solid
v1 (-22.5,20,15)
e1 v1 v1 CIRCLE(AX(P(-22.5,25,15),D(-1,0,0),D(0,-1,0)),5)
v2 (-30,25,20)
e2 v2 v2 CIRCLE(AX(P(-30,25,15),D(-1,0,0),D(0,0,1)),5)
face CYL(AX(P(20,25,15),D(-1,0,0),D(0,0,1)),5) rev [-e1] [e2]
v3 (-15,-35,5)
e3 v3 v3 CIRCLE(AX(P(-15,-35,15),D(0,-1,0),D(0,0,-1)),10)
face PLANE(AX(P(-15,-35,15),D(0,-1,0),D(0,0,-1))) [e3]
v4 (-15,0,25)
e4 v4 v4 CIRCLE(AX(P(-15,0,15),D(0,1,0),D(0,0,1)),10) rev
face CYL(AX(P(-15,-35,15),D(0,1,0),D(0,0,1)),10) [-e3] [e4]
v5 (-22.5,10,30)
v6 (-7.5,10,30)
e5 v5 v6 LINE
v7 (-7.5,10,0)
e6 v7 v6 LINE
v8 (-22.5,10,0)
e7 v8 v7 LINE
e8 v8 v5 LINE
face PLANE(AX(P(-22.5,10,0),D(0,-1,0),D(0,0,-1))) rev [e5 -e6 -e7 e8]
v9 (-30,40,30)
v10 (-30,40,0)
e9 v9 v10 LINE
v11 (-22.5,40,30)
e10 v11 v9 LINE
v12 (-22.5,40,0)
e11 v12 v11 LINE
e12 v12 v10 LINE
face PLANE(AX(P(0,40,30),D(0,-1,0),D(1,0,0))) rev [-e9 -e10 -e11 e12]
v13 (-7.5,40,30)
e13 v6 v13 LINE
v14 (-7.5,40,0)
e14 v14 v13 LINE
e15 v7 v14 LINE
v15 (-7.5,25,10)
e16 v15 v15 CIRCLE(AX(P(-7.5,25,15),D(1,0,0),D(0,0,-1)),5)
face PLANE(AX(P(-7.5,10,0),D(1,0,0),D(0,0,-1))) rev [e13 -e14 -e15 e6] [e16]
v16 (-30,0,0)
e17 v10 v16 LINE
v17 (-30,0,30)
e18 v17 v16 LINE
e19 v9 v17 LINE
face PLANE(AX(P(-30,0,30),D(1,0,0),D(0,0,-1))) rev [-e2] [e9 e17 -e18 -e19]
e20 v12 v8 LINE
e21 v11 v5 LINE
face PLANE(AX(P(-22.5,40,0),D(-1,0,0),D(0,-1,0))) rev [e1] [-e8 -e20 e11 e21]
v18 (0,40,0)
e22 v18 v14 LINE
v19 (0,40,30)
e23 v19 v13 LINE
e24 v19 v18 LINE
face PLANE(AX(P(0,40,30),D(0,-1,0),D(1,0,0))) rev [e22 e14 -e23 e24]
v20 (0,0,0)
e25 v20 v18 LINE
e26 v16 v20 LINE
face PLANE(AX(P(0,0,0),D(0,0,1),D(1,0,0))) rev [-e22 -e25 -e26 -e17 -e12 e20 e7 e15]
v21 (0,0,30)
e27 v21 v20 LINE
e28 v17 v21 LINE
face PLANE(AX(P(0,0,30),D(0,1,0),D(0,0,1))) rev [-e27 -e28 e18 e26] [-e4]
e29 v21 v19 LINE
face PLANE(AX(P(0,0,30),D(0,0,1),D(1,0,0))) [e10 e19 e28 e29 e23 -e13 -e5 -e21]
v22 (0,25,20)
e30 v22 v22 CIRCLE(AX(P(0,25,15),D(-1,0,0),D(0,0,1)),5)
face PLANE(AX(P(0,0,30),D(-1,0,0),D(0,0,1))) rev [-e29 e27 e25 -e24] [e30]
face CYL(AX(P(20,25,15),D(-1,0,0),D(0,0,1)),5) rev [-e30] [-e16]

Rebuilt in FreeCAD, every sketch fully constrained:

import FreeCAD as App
import Part
import Sketcher

V = App.Vector

doc = App.newDocument("Part")
params = doc.addObject("Spreadsheet::Sheet", "Params")
for row, (alias, value) in enumerate([
    ("sketch1_width", "30 mm"),
    ("sketch1_height", "40 mm"),
    ("pad1_length", "30 mm"),
    ("sketch2_width", "15 mm"),
    ("sketch2_height", "30 mm"),
    ("pocket1_length", "30 mm"),
    ("sketch3_diameter", "10 mm"),
    ("pocket2_length", "50 mm"),
    ("sketch4_diameter", "20 mm"),
    ("pad2_length", "35 mm"),
], start=1):
    params.set(f"A{row}", alias)
    params.set(f"B{row}", "=" + value)
    params.setAlias(f"B{row}", alias)

body = doc.addObject("PartDesign::Body", "Body")

sketch1 = body.newObject("Sketcher::SketchObject", "Sketch")
sketch1.AttachmentSupport = (doc.getObject("XY_Plane"), [""])
sketch1.MapMode = "FlatFace"
sketch1.addGeometry([
    Part.LineSegment(V(-30, 40, 0), V(-30, 0, 0)),
    Part.LineSegment(V(-30, 0, 0), V(0, 0, 0)),
    Part.LineSegment(V(0, 0, 0), V(0, 40, 0)),
    Part.LineSegment(V(0, 40, 0), V(-30, 40, 0)),
], False)
sketch1.addConstraint([
    Sketcher.Constraint("Coincident", 0, 2, 1, 1),
    Sketcher.Constraint("Coincident", 1, 2, 2, 1),
    Sketcher.Constraint("Coincident", 2, 2, 3, 1),
    Sketcher.Constraint("Coincident", 3, 2, 0, 1),
    Sketcher.Constraint("Vertical", 0),
    Sketcher.Constraint("Horizontal", 1),
    Sketcher.Constraint("Vertical", 2),
    Sketcher.Constraint("Horizontal", 3),
    Sketcher.Constraint("Coincident", 1, 2, -1, 1),
    Sketcher.Constraint("DistanceX", 1, 1, 1, 2, 30.0),
    Sketcher.Constraint("DistanceY", 0, 2, 0, 1, 40.0),
])
sketch1.setExpression("Constraints[9]", "Params.sketch1_width")
sketch1.setExpression("Constraints[10]", "Params.sketch1_height")
pad1 = body.newObject("PartDesign::Pad", "Pad")
pad1.Profile = sketch1
pad1.setExpression("Length", "Params.pad1_length")

sketch2 = body.newObject("Sketcher::SketchObject", "Sketch001")
sketch2.AttachmentSupport = (doc.getObject("XY_Plane"), [""])
sketch2.MapMode = "FlatFace"
sketch2.AttachmentOffset = App.Placement(V(0, 0, 30), App.Rotation())
sketch2.addGeometry([
    Part.LineSegment(V(-22, 40, 0), V(-22, 10, 0)),
    Part.LineSegment(V(-22, 10, 0), V(-8, 10, 0)),
    Part.LineSegment(V(-8, 10, 0), V(-8, 40, 0)),
    Part.LineSegment(V(-8, 40, 0), V(-22, 40, 0)),
], False)
sketch2.addConstraint([
    Sketcher.Constraint("Coincident", 0, 2, 1, 1),
    Sketcher.Constraint("Coincident", 1, 2, 2, 1),
    Sketcher.Constraint("Coincident", 2, 2, 3, 1),
    Sketcher.Constraint("Coincident", 3, 2, 0, 1),
    Sketcher.Constraint("Vertical", 0),
    Sketcher.Constraint("Horizontal", 1),
    Sketcher.Constraint("Vertical", 2),
    Sketcher.Constraint("Horizontal", 3),
    Sketcher.Constraint("DistanceX", 1, 1, 1, 2, 15.0),
    Sketcher.Constraint("DistanceY", 0, 2, 0, 1, 30.0),
    Sketcher.Constraint("DistanceY", -1, 1, 0, 2, 10.0),
    Sketcher.Constraint("DistanceX", 0, 2, -1, 1, 22.5),
])
sketch2.setExpression("Constraints[8]", "Params.sketch2_width")
sketch2.setExpression("Constraints[9]", "Params.sketch2_height")
pocket1 = body.newObject("PartDesign::Pocket", "Pocket")
pocket1.Profile = sketch2
pocket1.setExpression("Length", "Params.pocket1_length")

sketch3 = body.newObject("Sketcher::SketchObject", "Sketch002")
sketch3.AttachmentSupport = (doc.getObject("YZ_Plane"), [""])
sketch3.MapMode = "FlatFace"
sketch3.AttachmentOffset = App.Placement(V(0, 0, -30), App.Rotation())
sketch3.addGeometry(Part.Circle(V(25, 15, 0), V(0, 0, 1), 5), False)
sketch3.addConstraint([
    Sketcher.Constraint("Diameter", 0, 10.0),
    Sketcher.Constraint("DistanceX", -1, 1, 0, 3, 25.0),
    Sketcher.Constraint("DistanceY", -1, 1, 0, 3, 15.0),
])
sketch3.setExpression("Constraints[0]", "Params.sketch3_diameter")
pocket2 = body.newObject("PartDesign::Pocket", "Pocket001")
pocket2.Profile = sketch3
pocket2.setExpression("Length", "Params.pocket2_length")
pocket2.Reversed = True

sketch4 = body.newObject("Sketcher::SketchObject", "Sketch003")
sketch4.AttachmentSupport = (doc.getObject("XZ_Plane"), [""])
sketch4.MapMode = "FlatFace"
sketch4.addGeometry(Part.Circle(V(-15, 15, 0), V(0, 0, 1), 10), False)
sketch4.addConstraint([
    Sketcher.Constraint("Diameter", 0, 20.0),
    Sketcher.Constraint("DistanceX", 0, 3, -1, 1, 15.0),
    Sketcher.Constraint("DistanceY", -1, 1, 0, 3, 15.0),
])
sketch4.setExpression("Constraints[0]", "Params.sketch4_diameter")
pad2 = body.newObject("PartDesign::Pad", "Pad001")
pad2.Profile = sketch4
pad2.setExpression("Length", "Params.pad2_length")

doc.recompute()
